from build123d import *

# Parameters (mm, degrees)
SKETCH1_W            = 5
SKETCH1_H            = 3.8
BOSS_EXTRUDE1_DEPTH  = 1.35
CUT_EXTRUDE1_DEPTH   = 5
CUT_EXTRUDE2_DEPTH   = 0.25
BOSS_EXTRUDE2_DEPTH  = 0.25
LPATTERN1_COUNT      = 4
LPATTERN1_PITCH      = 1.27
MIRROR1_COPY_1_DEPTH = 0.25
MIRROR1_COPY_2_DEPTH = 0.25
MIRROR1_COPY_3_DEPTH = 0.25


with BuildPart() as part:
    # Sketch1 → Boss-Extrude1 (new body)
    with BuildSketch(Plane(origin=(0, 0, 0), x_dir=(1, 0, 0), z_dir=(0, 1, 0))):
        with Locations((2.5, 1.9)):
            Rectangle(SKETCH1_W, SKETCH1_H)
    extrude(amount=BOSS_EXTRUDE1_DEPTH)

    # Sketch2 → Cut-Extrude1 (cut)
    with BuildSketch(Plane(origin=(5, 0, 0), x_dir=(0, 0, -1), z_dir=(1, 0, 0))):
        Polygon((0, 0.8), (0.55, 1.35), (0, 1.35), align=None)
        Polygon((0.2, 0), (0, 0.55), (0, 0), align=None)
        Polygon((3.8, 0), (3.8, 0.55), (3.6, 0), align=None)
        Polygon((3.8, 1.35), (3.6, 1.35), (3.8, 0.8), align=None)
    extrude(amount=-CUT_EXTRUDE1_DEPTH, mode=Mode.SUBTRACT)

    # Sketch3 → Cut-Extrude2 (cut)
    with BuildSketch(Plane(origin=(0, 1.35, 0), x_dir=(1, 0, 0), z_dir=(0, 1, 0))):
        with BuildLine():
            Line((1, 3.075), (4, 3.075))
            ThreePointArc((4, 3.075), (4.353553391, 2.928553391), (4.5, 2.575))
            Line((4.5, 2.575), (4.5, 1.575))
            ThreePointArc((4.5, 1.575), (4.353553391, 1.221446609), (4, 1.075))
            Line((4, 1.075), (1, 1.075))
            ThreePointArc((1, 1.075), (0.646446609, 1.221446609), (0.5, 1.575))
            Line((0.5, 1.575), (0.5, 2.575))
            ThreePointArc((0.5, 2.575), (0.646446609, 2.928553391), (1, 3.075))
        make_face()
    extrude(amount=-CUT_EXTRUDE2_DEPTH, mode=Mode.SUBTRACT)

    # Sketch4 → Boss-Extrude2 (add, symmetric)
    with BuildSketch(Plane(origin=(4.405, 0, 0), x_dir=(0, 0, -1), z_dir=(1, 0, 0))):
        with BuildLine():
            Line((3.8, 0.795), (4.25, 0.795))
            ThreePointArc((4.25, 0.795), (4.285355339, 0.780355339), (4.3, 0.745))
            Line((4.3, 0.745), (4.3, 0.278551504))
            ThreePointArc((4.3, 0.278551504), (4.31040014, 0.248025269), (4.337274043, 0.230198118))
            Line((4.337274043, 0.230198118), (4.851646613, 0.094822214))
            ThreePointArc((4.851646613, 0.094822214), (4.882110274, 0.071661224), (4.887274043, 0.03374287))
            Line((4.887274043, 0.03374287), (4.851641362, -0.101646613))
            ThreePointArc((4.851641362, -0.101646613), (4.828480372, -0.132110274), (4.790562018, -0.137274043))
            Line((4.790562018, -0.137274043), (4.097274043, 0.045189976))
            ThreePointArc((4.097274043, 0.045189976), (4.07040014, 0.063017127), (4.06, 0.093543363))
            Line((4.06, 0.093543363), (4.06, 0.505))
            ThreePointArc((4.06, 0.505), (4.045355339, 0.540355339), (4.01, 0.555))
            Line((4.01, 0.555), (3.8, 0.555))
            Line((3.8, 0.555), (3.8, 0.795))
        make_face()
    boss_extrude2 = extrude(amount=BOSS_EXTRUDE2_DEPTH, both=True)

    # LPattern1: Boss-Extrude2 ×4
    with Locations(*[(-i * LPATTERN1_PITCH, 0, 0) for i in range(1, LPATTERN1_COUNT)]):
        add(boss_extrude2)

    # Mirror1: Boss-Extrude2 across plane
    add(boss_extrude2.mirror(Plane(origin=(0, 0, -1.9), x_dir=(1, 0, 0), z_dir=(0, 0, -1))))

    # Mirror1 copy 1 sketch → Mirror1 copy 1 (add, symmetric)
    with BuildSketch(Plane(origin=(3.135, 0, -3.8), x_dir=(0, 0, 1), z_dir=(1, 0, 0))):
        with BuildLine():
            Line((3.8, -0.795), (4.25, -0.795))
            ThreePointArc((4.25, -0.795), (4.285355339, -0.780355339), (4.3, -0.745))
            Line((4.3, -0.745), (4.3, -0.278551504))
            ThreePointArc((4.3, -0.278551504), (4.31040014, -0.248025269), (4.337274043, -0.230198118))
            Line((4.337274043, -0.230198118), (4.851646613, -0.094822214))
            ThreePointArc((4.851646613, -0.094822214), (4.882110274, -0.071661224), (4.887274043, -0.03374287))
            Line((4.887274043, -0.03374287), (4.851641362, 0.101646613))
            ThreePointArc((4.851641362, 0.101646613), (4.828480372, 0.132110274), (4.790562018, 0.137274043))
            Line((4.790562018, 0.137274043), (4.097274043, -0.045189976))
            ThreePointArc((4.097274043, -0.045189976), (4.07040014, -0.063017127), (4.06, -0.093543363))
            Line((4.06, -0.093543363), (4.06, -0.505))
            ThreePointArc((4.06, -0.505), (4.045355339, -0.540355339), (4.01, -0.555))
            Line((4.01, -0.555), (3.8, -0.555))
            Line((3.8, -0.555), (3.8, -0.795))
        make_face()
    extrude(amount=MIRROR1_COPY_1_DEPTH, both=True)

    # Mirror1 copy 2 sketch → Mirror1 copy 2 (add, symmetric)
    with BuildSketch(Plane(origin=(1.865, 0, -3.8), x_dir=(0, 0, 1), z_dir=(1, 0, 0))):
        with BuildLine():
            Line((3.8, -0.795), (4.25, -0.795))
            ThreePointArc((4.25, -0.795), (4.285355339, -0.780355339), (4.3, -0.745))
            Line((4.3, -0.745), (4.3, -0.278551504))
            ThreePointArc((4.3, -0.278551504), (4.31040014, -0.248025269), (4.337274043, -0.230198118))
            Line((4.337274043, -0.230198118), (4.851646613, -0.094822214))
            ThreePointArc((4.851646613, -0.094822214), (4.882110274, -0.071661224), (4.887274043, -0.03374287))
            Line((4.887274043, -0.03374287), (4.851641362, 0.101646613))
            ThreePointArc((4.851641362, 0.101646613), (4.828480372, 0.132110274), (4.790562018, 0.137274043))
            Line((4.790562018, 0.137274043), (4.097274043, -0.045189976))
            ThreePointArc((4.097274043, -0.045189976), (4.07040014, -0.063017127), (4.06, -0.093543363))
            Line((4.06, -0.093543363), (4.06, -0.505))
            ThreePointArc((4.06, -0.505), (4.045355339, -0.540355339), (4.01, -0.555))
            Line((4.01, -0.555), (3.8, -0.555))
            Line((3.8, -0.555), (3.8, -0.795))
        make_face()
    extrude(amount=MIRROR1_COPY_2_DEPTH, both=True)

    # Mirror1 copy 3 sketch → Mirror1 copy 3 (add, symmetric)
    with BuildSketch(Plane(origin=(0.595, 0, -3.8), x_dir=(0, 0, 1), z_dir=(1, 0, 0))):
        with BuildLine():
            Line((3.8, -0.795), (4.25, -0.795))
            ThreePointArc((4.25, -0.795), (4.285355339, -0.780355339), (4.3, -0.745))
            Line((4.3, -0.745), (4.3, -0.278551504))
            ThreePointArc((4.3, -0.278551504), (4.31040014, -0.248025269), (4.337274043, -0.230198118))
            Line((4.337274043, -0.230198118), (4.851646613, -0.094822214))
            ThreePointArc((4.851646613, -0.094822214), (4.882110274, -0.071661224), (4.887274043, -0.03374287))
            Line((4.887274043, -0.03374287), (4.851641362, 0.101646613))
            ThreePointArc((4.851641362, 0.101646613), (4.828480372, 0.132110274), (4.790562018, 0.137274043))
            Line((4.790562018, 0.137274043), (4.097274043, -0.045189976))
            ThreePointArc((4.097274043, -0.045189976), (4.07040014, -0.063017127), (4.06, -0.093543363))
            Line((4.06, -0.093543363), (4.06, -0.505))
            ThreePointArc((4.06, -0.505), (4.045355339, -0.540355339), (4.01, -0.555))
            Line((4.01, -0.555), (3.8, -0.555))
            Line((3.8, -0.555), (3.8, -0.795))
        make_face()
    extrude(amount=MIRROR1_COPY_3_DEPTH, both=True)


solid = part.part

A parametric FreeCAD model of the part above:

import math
import FreeCAD as App
import Part
import Sketcher
Q = App.Units.Quantity

doc = App.newDocument("Part")
body = doc.addObject("PartDesign::Body", "Body")

# Sketch on XZ plane
sketch1 = doc.addObject("Sketcher::SketchObject", "Sketch")
body.addObject(sketch1)
sketch1.AttachmentSupport = (doc.XZ_Plane, [""])
sketch1.MapMode = "FlatFace"
sketch1.addGeometry(Part.LineSegment(App.Vector(0, -3.8, 0), App.Vector(0, 0, 0)), False)
sketch1.addGeometry(Part.LineSegment(App.Vector(0, 0, 0), App.Vector(5, 0, 0)), False)
sketch1.addGeometry(Part.LineSegment(App.Vector(5, 0, 0), App.Vector(5, -3.8, 0)), False)
sketch1.addGeometry(Part.LineSegment(App.Vector(5, -3.8, 0), App.Vector(0, -3.8, 0)), False)
sketch1.addConstraint(Sketcher.Constraint("Coincident", 0, 2, 1, 1))
sketch1.addConstraint(Sketcher.Constraint("Coincident", 1, 2, 2, 1))
sketch1.addConstraint(Sketcher.Constraint("Coincident", 2, 2, 3, 1))
sketch1.addConstraint(Sketcher.Constraint("Coincident", 3, 2, 0, 1))
sketch1.addConstraint(Sketcher.Constraint("Vertical", 0))
sketch1.addConstraint(Sketcher.Constraint("Horizontal", 1))
sketch1.addConstraint(Sketcher.Constraint("Vertical", 2))
sketch1.addConstraint(Sketcher.Constraint("Horizontal", 3))
sketch1.addConstraint(Sketcher.Constraint("Coincident", 0, 2, -1, 1))
sketch1.addConstraint(Sketcher.Constraint("DistanceX", 1, 1, 1, 2, Q("5 mm")))
sketch1.addConstraint(Sketcher.Constraint("DistanceY", 0, 1, 0, 2, Q("3.8 mm")))
pad1 = doc.addObject("PartDesign::Pad", "Pad")
body.addObject(pad1)
pad1.Profile = sketch1
pad1.Length = 1.35
pad1.Reversed = True

# Sketch on YZ plane
sketch2 = doc.addObject("Sketcher::SketchObject", "Sketch001")
body.addObject(sketch2)
sketch2.AttachmentSupport = (doc.YZ_Plane, [""])
sketch2.MapMode = "FlatFace"
sketch2.AttachmentOffset = App.Placement(App.Vector(0, 0, 5), App.Rotation())
sketch2.addGeometry(Part.LineSegment(App.Vector(0.8, 0, 0), App.Vector(1.35, -0.55, 0)), False)
sketch2.addGeometry(Part.LineSegment(App.Vector(1.35, -0.55, 0), App.Vector(1.35, 0, 0)), False)
sketch2.addGeometry(Part.LineSegment(App.Vector(1.35, 0, 0), App.Vector(0.8, 0, 0)), False)
sketch2.addGeometry(Part.LineSegment(App.Vector(0, -0.2, 0), App.Vector(0.55, 0, 0)), False)
sketch2.addGeometry(Part.LineSegment(App.Vector(0.55, 0, 0), App.Vector(0, 0, 0)), False)
sketch2.addGeometry(Part.LineSegment(App.Vector(0, 0, 0), App.Vector(0, -0.2, 0)), False)
sketch2.addGeometry(Part.LineSegment(App.Vector(0, -3.8, 0), App.Vector(0.55, -3.8, 0)), False)
sketch2.addGeometry(Part.LineSegment(App.Vector(0.55, -3.8, 0), App.Vector(0, -3.6, 0)), False)
sketch2.addGeometry(Part.LineSegment(App.Vector(0, -3.6, 0), App.Vector(0, -3.8, 0)), False)
sketch2.addGeometry(Part.LineSegment(App.Vector(1.35, -3.8, 0), App.Vector(1.35, -3.6, 0)), False)
sketch2.addGeometry(Part.LineSegment(App.Vector(1.35, -3.6, 0), App.Vector(0.8, -3.8, 0)), False)
sketch2.addGeometry(Part.LineSegment(App.Vector(0.8, -3.8, 0), App.Vector(1.35, -3.8, 0)), False)
sketch2.addConstraint(Sketcher.Constraint("Coincident", 0, 2, 1, 1))
sketch2.addConstraint(Sketcher.Constraint("Coincident", 1, 2, 2, 1))
sketch2.addConstraint(Sketcher.Constraint("Coincident", 2, 2, 0, 1))
sketch2.addConstraint(Sketcher.Constraint("Coincident", 3, 2, 4, 1))
sketch2.addConstraint(Sketcher.Constraint("Coincident", 4, 2, 5, 1))
sketch2.addConstraint(Sketcher.Constraint("Coincident", 5, 2, 3, 1))
sketch2.addConstraint(Sketcher.Constraint("Coincident", 6, 2, 7, 1))
sketch2.addConstraint(Sketcher.Constraint("Coincident", 7, 2, 8, 1))
sketch2.addConstraint(Sketcher.Constraint("Coincident", 8, 2, 6, 1))
sketch2.addConstraint(Sketcher.Constraint("Coincident", 9, 2, 10, 1))
sketch2.addConstraint(Sketcher.Constraint("Coincident", 10, 2, 11, 1))
sketch2.addConstraint(Sketcher.Constraint("Coincident", 11, 2, 9, 1))
sketch2.addConstraint(Sketcher.Constraint("Vertical", 1))
sketch2.addConstraint(Sketcher.Constraint("Horizontal", 2))
sketch2.addConstraint(Sketcher.Constraint("Horizontal", 4))
sketch2.addConstraint(Sketcher.Constraint("Vertical", 5))
sketch2.addConstraint(Sketcher.Constraint("Horizontal", 6))
sketch2.addConstraint(Sketcher.Constraint("Vertical", 8))
sketch2.addConstraint(Sketcher.Constraint("Vertical", 9))
sketch2.addConstraint(Sketcher.Constraint("Horizontal", 11))
sketch2.addConstraint(Sketcher.Constraint("Coincident", 4, 2, -1, 1))
sketch2.addConstraint(Sketcher.Constraint("PointOnObject", 1, 2, -1))
sketch2.addConstraint(Sketcher.Constraint("PointOnObject", 7, 2, -2))
sketch2.addConstraint(Sketcher.Constraint("Parallel", 3, 10))
sketch2.addConstraint(Sketcher.Constraint("Horizontal", 7, 2, 9, 2))
sketch2.addConstraint(Sketcher.Constraint("Horizontal", 8, 2, 10, 2))
sketch2.addConstraint(Sketcher.Constraint("Vertical", 3, 2, 6, 2))
sketch2.addConstraint(Sketcher.Constraint("Vertical", 1, 2, 9, 2))
sketch2.addConstraint(Sketcher.Constraint("Vertical", 2, 2, 10, 2))
sketch2.addConstraint(Sketcher.Constraint("Equal", 2, 4))
sketch2.addConstraint(Sketcher.Constraint("Equal", 11, 1))
sketch2.addConstraint(Sketcher.Constraint("DistanceY", 5, 2, 5, 1, Q("0.2 mm")))
sketch2.addConstraint(Sketcher.Constraint("DistanceX", 2, 2, 2, 1, Q("0.55 mm")))
sketch2.addConstraint(Sketcher.Constraint("DistanceX", -1, 1, 2, 2, Q("0.8 mm")))
sketch2.addConstraint(Sketcher.Constraint("DistanceY", 6, 2, -1, 1, Q("3.8 mm")))
pocket1 = doc.addObject("PartDesign::Pocket", "Pocket")
body.addObject(pocket1)
pocket1.Profile = sketch2
pocket1.Length = 5

# Sketch on XZ plane
sketch3 = doc.addObject("Sketcher::SketchObject", "Sketch002")
body.addObject(sketch3)
sketch3.AttachmentSupport = (doc.XZ_Plane, [""])
sketch3.MapMode = "FlatFace"
sketch3.AttachmentOffset = App.Placement(App.Vector(0, 0, -1.35), App.Rotation())
sketch3.addGeometry(Part.LineSegment(App.Vector(4, -3.075, 0), App.Vector(1, -3.075, 0)), False)
sketch3.addGeometry(Part.ArcOfCircle(Part.Circle(App.Vector(1, -2.575, 0), App.Vector(0, 0, 1), 0.5), math.radians(180), math.radians(270)), False)
sketch3.addGeometry(Part.LineSegment(App.Vector(0.5, -2.575, 0), App.Vector(0.5, -1.575, 0)), False)
sketch3.addGeometry(Part.ArcOfCircle(Part.Circle(App.Vector(1, -1.575, 0), App.Vector(0, 0, 1), 0.5), math.radians(90), math.radians(180)), False)
sketch3.addGeometry(Part.LineSegment(App.Vector(1, -1.075, 0), App.Vector(4, -1.075, 0)), False)
sketch3.addGeometry(Part.ArcOfCircle(Part.Circle(App.Vector(4, -1.575, 0), App.Vector(0, 0, 1), 0.5), math.radians(0), math.radians(90)), False)
sketch3.addGeometry(Part.LineSegment(App.Vector(4.5, -1.575, 0), App.Vector(4.5, -2.575, 0)), False)
sketch3.addGeometry(Part.ArcOfCircle(Part.Circle(App.Vector(4, -2.575, 0), App.Vector(0, 0, 1), 0.5), math.radians(-90), math.radians(0)), False)
sketch3.addConstraint(Sketcher.Constraint("Tangent", 0, 2, 1, 2))
sketch3.addConstraint(Sketcher.Constraint("Tangent", 1, 1, 2, 1))
sketch3.addConstraint(Sketcher.Constraint("Tangent", 2, 2, 3, 2))
sketch3.addConstraint(Sketcher.Constraint("Tangent", 3, 1, 4, 1))
sketch3.addConstraint(Sketcher.Constraint("Tangent", 4, 2, 5, 2))
sketch3.addConstraint(Sketcher.Constraint("Tangent", 5, 1, 6, 1))
sketch3.addConstraint(Sketcher.Constraint("Tangent", 6, 2, 7, 2))
sketch3.addConstraint(Sketcher.Constraint("Tangent", 7, 1, 0, 1))
sketch3.addConstraint(Sketcher.Constraint("Horizontal", 0))
sketch3.addConstraint(Sketcher.Constraint("Vertical", 2))
sketch3.addConstraint(Sketcher.Constraint("Horizontal", 4))
sketch3.addConstraint(Sketcher.Constraint("Vertical", 6))
sketch3.addConstraint(Sketcher.Constraint("Equal", 1, 3))
sketch3.addConstraint(Sketcher.Constraint("Equal", 3, 5))
sketch3.addConstraint(Sketcher.Constraint("Equal", 5, 7))
sketch3.addConstraint(Sketcher.Constraint("Radius", 1, Q("0.5 mm")))
sketch3.addConstraint(Sketcher.Constraint("DistanceX", 0, 2, 0, 1, Q("3 mm")))
sketch3.addConstraint(Sketcher.Constraint("DistanceY", 2, 1, 2, 2, Q("1 mm")))
sketch3.addConstraint(Sketcher.Constraint("DistanceX", -1, 1, 1, 3, Q("1 mm")))
sketch3.addConstraint(Sketcher.Constraint("DistanceY", 1, 3, -1, 1, Q("2.575 mm")))
pocket2 = doc.addObject("PartDesign::Pocket", "Pocket001")
body.addObject(pocket2)
pocket2.Profile = sketch3
pocket2.Length = 0.25
pocket2.Reversed = True

# Sketch on YZ plane
sketch4 = doc.addObject("Sketcher::SketchObject", "Sketch003")
body.addObject(sketch4)
sketch4.AttachmentSupport = (doc.YZ_Plane, [""])
sketch4.MapMode = "FlatFace"
sketch4.AttachmentOffset = App.Placement(App.Vector(0, 0, 4.405), App.Rotation())
sketch4.addGeometry(Part.LineSegment(App.Vector(0.795, -4.25, 0), App.Vector(0.795, -3.8, 0)), False)
sketch4.addGeometry(Part.LineSegment(App.Vector(0.795, -3.8, 0), App.Vector(0.555, -3.8, 0)), False)
sketch4.addGeometry(Part.LineSegment(App.Vector(0.555, -3.8, 0), App.Vector(0.555, -4.01, 0)), False)
sketch4.addGeometry(Part.ArcOfCircle(Part.Circle(App.Vector(0.505, -4.01, 0), App.Vector(0, 0, 1), 0.05), math.radians(-90), math.radians(0)), False)
sketch4.addGeometry(Part.LineSegment(App.Vector(0.505, -4.06, 0), App.Vector(0.093543, -4.06, 0)), False)
sketch4.addGeometry(Part.ArcOfCircle(Part.Circle(App.Vector(0.093543, -4.11, 0), App.Vector(0, 0, 1), 0.05), math.radians(90), math.radians(165.254905)), False)
sketch4.addGeometry(Part.LineSegment(App.Vector(0.04519, -4.097274, 0), App.Vector(-0.137274, -4.790562, 0)), False)
sketch4.addGeometry(Part.ArcOfCircle(Part.Circle(App.Vector(-0.088921, -4.803288, 0), App.Vector(0, 0, 1), 0.05), math.radians(165.254908), math.radians(255.254905)), False)
sketch4.addGeometry(Part.LineSegment(App.Vector(-0.101647, -4.851641, 0), App.Vector(0.033743, -4.887274, 0)), False)
sketch4.addGeometry(Part.ArcOfCircle(Part.Circle(App.Vector(0.046469, -4.838921, 0), App.Vector(0, 0, 1), 0.05), math.radians(-104.745092), math.radians(-14.745095)), False)
sketch4.addGeometry(Part.LineSegment(App.Vector(0.094822, -4.851647, 0), App.Vector(0.230198, -4.337274, 0)), False)
sketch4.addGeometry(Part.ArcOfCircle(Part.Circle(App.Vector(0.278552, -4.35, 0), App.Vector(0, 0, 1), 0.05), math.radians(90.000001), math.radians(165.254905)), False)
sketch4.addGeometry(Part.LineSegment(App.Vector(0.278552, -4.3, 0), App.Vector(0.745, -4.3, 0)), False)
sketch4.addGeometry(Part.ArcOfCircle(Part.Circle(App.Vector(0.745, -4.25, 0), App.Vector(0, 0, 1), 0.05), math.radians(-90), math.radians(0)), False)
sketch4.addConstraint(Sketcher.Constraint("Coincident", 0, 2, 1, 1))
sketch4.addConstraint(Sketcher.Constraint("Coincident", 1, 2, 2, 1))
sketch4.addConstraint(Sketcher.Constraint("Coincident", 2, 2, 3, 2))
sketch4.addConstraint(Sketcher.Constraint("Coincident", 3, 1, 4, 1))
sketch4.addConstraint(Sketcher.Constraint("Coincident", 4, 2, 5, 1))
sketch4.addConstraint(Sketcher.Constraint("Coincident", 5, 2, 6, 1))
sketch4.addConstraint(Sketcher.Constraint("Coincident", 6, 2, 7, 1))
sketch4.addConstraint(Sketcher.Constraint("Coincident", 7, 2, 8, 1))
sketch4.addConstraint(Sketcher.Constraint("Coincident", 8, 2, 9, 1))
sketch4.addConstraint(Sketcher.Constraint("Coincident", 9, 2, 10, 1))
sketch4.addConstraint(Sketcher.Constraint("Coincident", 10, 2, 11, 2))
sketch4.addConstraint(Sketcher.Constraint("Coincident", 11, 1, 12, 1))
sketch4.addConstraint(Sketcher.Constraint("Coincident", 12, 2, 13, 1))
sketch4.addConstraint(Sketcher.Constraint("Coincident", 13, 2, 0, 1))
sketch4.addConstraint(Sketcher.Constraint("Vertical", 0))
sketch4.addConstraint(Sketcher.Constraint("Horizontal", 1))
sketch4.addConstraint(Sketcher.Constraint("Vertical", 2))
sketch4.addConstraint(Sketcher.Constraint("Horizontal", 4))
sketch4.addConstraint(Sketcher.Constraint("Horizontal", 12))
sketch4.addConstraint(Sketcher.Constraint("Radius", 3, Q("0.05 mm")))
sketch4.addConstraint(Sketcher.Constraint("Radius", 5, Q("0.05 mm")))
sketch4.addConstraint(Sketcher.Constraint("Radius", 7, Q("0.05 mm")))
sketch4.addConstraint(Sketcher.Constraint("Radius", 9, Q("0.05 mm")))
sketch4.addConstraint(Sketcher.Constraint("Radius", 11, Q("0.05 mm")))
sketch4.addConstraint(Sketcher.Constraint("Radius", 13, Q("0.05 mm")))
sketch4.addConstraint(Sketcher.Constraint("DistanceX", 1, 2, 1, 1, Q("0.24 mm")))
sketch4.addConstraint(Sketcher.Constraint("DistanceY", 0, 1, 0, 2, Q("0.45 mm")))
sketch4.addConstraint(Sketcher.Constraint("DistanceY", 2, 2, 2, 1, Q("0.21 mm")))
sketch4.addConstraint(Sketcher.Constraint("DistanceY", 0, 2, -1, 1, Q("3.8 mm")))
sketch4.addConstraint(Sketcher.Constraint("DistanceY", 11, 1, -1, 1, Q("4.3 mm")))
sketch4.addConstraint(Sketcher.Constraint("Distance", 8, Q("0.14 mm")))
sketch4.addConstraint(Sketcher.Constraint("DistanceY", 3, 3, -1, 1, Q("4.01 mm")))
sketch4.addConstraint(Sketcher.Constraint("DistanceX", 3, 1, 2, 2, Q("0.05 mm")))
sketch4.addConstraint(Sketcher.Constraint("DistanceY", 10, 2, 5, 2, Q("0.24 mm")))
sketch4.addConstraint(Sketcher.Constraint("DistanceX", 3, 1, 12, 2, Q("0.24 mm")))
sketch4.addConstraint(Sketcher.Constraint("DistanceX", -1, 1, 3, 3, Q("0.505 mm")))
sketch4.addConstraint(Sketcher.Constraint("DistanceX", 12, 1, 12, 2, Q("0.466448 mm")))
sketch4.addConstraint(Sketcher.Constraint("DistanceX", -1, 1, 10, 2, Q("0.230198 mm")))
sketch4.addConstraint(Sketcher.Constraint("DistanceX", 7, 2, 11, 3, Q("0.380198 mm")))
sketch4.addConstraint(Sketcher.Constraint("Distance", 10, Q("0.531889 mm")))
sketch4.addConstraint(Sketcher.Constraint("DistanceX", 4, 2, 4, 1, Q("0.411457 mm")))
sketch4.addConstraint(Sketcher.Constraint("DistanceX", 7, 3, -1, 1, Q("0.088921 mm")))
sketch4.addConstraint(Sketcher.Constraint("DistanceX", -1, 1, 9, 3, Q("0.046469 mm")))
sketch4.addConstraint(Sketcher.Constraint("DistanceY", 9, 3, -1, 1, Q("4.838921 mm")))
sketch4.addConstraint(Sketcher.Constraint("DistanceX", -1, 1, 11, 3, Q("0.278552 mm")))
sketch4.addConstraint(Sketcher.Constraint("DistanceX", -1, 1, 5, 2, Q("0.04519 mm")))
sketch4.addConstraint(Sketcher.Constraint("DistanceY", 7, 2, -1, 1, Q("4.851641 mm")))
sketch4.addConstraint(Sketcher.Constraint("DistanceY", 9, 3, 6, 2, Q("0.048359 mm")))
pad2 = doc.addObject("PartDesign::Pad", "Pad001")
body.addObject(pad2)
pad2.Profile = sketch4
pad2.Length = 0.5
pad2.Midplane = True
doc.recompute()

linearpattern = doc.addObject("PartDesign::LinearPattern", "LinearPattern")
body.addObject(linearpattern)
linearpattern.Originals = [pad2]
linearpattern.Direction = (doc.X_Axis, [""])
linearpattern.Mode = "offset"
linearpattern.Offset = 1.27
linearpattern.Occurrences = 4
linearpattern.Reversed = True
body.Tip = linearpattern
doc.recompute()

datumplane = doc.addObject("PartDesign::Plane", "DatumPlane")
body.addObject(datumplane)
datumplane.AttachmentSupport = (doc.XY_Plane, [""])
datumplane.MapMode = "FlatFace"
datumplane.AttachmentOffset = App.Placement(App.Vector(0, 0, -1.9), App.Rotation())
mirrored = doc.addObject("PartDesign::Mirrored", "Mirrored")
body.addObject(mirrored)
mirrored.Originals = [pad2]
mirrored.MirrorPlane = (datumplane, [""])
body.Tip = mirrored

# Sketch on YZ plane
sketch5 = doc.addObject("Sketcher::SketchObject", "Sketch004")
body.addObject(sketch5)
sketch5.AttachmentSupport = (doc.YZ_Plane, [""])
sketch5.MapMode = "FlatFace"
sketch5.AttachmentOffset = App.Placement(App.Vector(0, 0, 3.135), App.Rotation())
sketch5.addGeometry(Part.LineSegment(App.Vector(0.795, 0, 0), App.Vector(0.795, 0.45, 0)), False)
sketch5.addGeometry(Part.ArcOfCircle(Part.Circle(App.Vector(0.745, 0.45, 0), App.Vector(0, 0, 1), 0.05), math.radians(0), math.radians(90)), False)
sketch5.addGeometry(Part.LineSegment(App.Vector(0.745, 0.5, 0), App.Vector(0.278552, 0.5, 0)), False)
sketch5.addGeometry(Part.ArcOfCircle(Part.Circle(App.Vector(0.278552, 0.55, 0), App.Vector(0, 0, 1), 0.05), math.radians(-165.254905), math.radians(-90.000001)), False)
sketch5.addGeometry(Part.LineSegment(App.Vector(0.230198, 0.537274, 0), App.Vector(0.094822, 1.051647, 0)), False)
sketch5.addGeometry(Part.ArcOfCircle(Part.Circle(App.Vector(0.046469, 1.038921, 0), App.Vector(0, 0, 1), 0.05), math.radians(14.745095), math.radians(104.745092)), False)
sketch5.addGeometry(Part.LineSegment(App.Vector(0.033743, 1.087274, 0), App.Vector(-0.101647, 1.051641, 0)), False)
sketch5.addGeometry(Part.ArcOfCircle(Part.Circle(App.Vector(-0.088921, 1.003288, 0), App.Vector(0, 0, 1), 0.05), math.radians(104.745095), math.radians(194.745092)), False)
sketch5.addGeometry(Part.LineSegment(App.Vector(-0.137274, 0.990562, 0), App.Vector(0.04519, 0.297274, 0)), False)
sketch5.addGeometry(Part.ArcOfCircle(Part.Circle(App.Vector(0.093543, 0.31, 0), App.Vector(0, 0, 1), 0.05), math.radians(-165.254905), math.radians(-90)), False)
sketch5.addGeometry(Part.LineSegment(App.Vector(0.093543, 0.26, 0), App.Vector(0.505, 0.26, 0)), False)
sketch5.addGeometry(Part.ArcOfCircle(Part.Circle(App.Vector(0.505, 0.21, 0), App.Vector(0, 0, 1), 0.05), math.radians(0), math.radians(90)), False)
sketch5.addGeometry(Part.LineSegment(App.Vector(0.555, 0.21, 0), App.Vector(0.555, 0, 0)), False)
sketch5.addGeometry(Part.LineSegment(App.Vector(0.555, 0, 0), App.Vector(0.795, 0, 0)), False)
sketch5.addConstraint(Sketcher.Constraint("Coincident", 0, 2, 1, 1))
sketch5.addConstraint(Sketcher.Constraint("Coincident", 1, 2, 2, 1))
sketch5.addConstraint(Sketcher.Constraint("Coincident", 2, 2, 3, 2))
sketch5.addConstraint(Sketcher.Constraint("Coincident", 3, 1, 4, 1))
sketch5.addConstraint(Sketcher.Constraint("Coincident", 4, 2, 5, 1))
sketch5.addConstraint(Sketcher.Constraint("Coincident", 5, 2, 6, 1))
sketch5.addConstraint(Sketcher.Constraint("Coincident", 6, 2, 7, 1))
sketch5.addConstraint(Sketcher.Constraint("Coincident", 7, 2, 8, 1))
sketch5.addConstraint(Sketcher.Constraint("Coincident", 8, 2, 9, 1))
sketch5.addConstraint(Sketcher.Constraint("Coincident", 9, 2, 10, 1))
sketch5.addConstraint(Sketcher.Constraint("Coincident", 10, 2, 11, 2))
sketch5.addConstraint(Sketcher.Constraint("Coincident", 11, 1, 12, 1))
sketch5.addConstraint(Sketcher.Constraint("Coincident", 12, 2, 13, 1))
sketch5.addConstraint(Sketcher.Constraint("Coincident", 13, 2, 0, 1))
sketch5.addConstraint(Sketcher.Constraint("Vertical", 0))
sketch5.addConstraint(Sketcher.Constraint("Horizontal", 2))
sketch5.addConstraint(Sketcher.Constraint("Horizontal", 10))
sketch5.addConstraint(Sketcher.Constraint("Vertical", 12))
sketch5.addConstraint(Sketcher.Constraint("Horizontal", 13))
sketch5.addConstraint(Sketcher.Constraint("PointOnObject", 12, 2, -1))
sketch5.addConstraint(Sketcher.Constraint("Radius", 1, Q("0.05 mm")))
sketch5.addConstraint(Sketcher.Constraint("Radius", 3, Q("0.05 mm")))
sketch5.addConstraint(Sketcher.Constraint("Radius", 5, Q("0.05 mm")))
sketch5.addConstraint(Sketcher.Constraint("Radius", 7, Q("0.05 mm")))
sketch5.addConstraint(Sketcher.Constraint("Radius", 9, Q("0.05 mm")))
sketch5.addConstraint(Sketcher.Constraint("Radius", 11, Q("0.05 mm")))
sketch5.addConstraint(Sketcher.Constraint("DistanceX", 13, 1, 13, 2, Q("0.24 mm")))
sketch5.addConstraint(Sketcher.Constraint("DistanceY", 0, 1, 0, 2, Q("0.45 mm")))
sketch5.addConstraint(Sketcher.Constraint("DistanceY", 12, 2, 12, 1, Q("0.21 mm")))
sketch5.addConstraint(Sketcher.Constraint("DistanceY", -1, 1, 1, 2, Q("0.5 mm")))
sketch5.addConstraint(Sketcher.Constraint("Distance", 6, Q("0.14 mm")))
sketch5.addConstraint(Sketcher.Constraint("DistanceY", -1, 1, 9, 3, Q("0.31 mm")))
sketch5.addConstraint(Sketcher.Constraint("DistanceX", 1, 2, 0, 2, Q("0.05 mm")))
sketch5.addConstraint(Sketcher.Constraint("DistanceY", 3, 1, 5, 2, Q("0.55 mm")))
sketch5.addConstraint(Sketcher.Constraint("DistanceY", 8, 2, 3, 1, Q("0.24 mm")))
sketch5.addConstraint(Sketcher.Constraint("DistanceX", 10, 2, 1, 3, Q("0.24 mm")))
sketch5.addConstraint(Sketcher.Constraint("DistanceX", -1, 1, 1, 3, Q("0.745 mm")))
sketch5.addConstraint(Sketcher.Constraint("DistanceX", 2, 2, 2, 1, Q("0.466448 mm")))
sketch5.addConstraint(Sketcher.Constraint("DistanceX", -1, 1, 3, 1, Q("0.230198 mm")))
sketch5.addConstraint(Sketcher.Constraint("Distance", 4, Q("0.531889 mm")))
sketch5.addConstraint(Sketcher.Constraint("DistanceX", 10, 1, 10, 2, Q("0.411457 mm")))
sketch5.addConstraint(Sketcher.Constraint("DistanceX", -1, 1, 3, 3, Q("0.278552 mm")))
sketch5.addConstraint(Sketcher.Constraint("DistanceX", -1, 1, 5, 3, Q("0.046469 mm")))
sketch5.addConstraint(Sketcher.Constraint("DistanceY", -1, 1, 5, 3, Q("1.038921 mm")))
sketch5.addConstraint(Sketcher.Constraint("DistanceX", 7, 3, -1, 1, Q("0.088921 mm")))
sketch5.addConstraint(Sketcher.Constraint("DistanceY", -1, 1, 6, 2, Q("1.051641 mm")))
sketch5.addConstraint(Sketcher.Constraint("DistanceX", -1, 1, 8, 2, Q("0.04519 mm")))
sketch5.addConstraint(Sketcher.Constraint("DistanceY", 7, 2, 6, 2, Q("0.061079 mm")))
pad3 = doc.addObject("PartDesign::Pad", "Pad002")
body.addObject(pad3)
pad3.Profile = sketch5
pad3.Length = 0.5
pad3.Midplane = True

# Sketch on YZ plane
sketch6 = doc.addObject("Sketcher::SketchObject", "Sketch005")
body.addObject(sketch6)
sketch6.AttachmentSupport = (doc.YZ_Plane, [""])
sketch6.MapMode = "FlatFace"
sketch6.AttachmentOffset = App.Placement(App.Vector(0, 0, 1.865), App.Rotation())
sketch6.addGeometry(Part.LineSegment(App.Vector(0.795, 0, 0), App.Vector(0.795, 0.45, 0)), False)
sketch6.addGeometry(Part.ArcOfCircle(Part.Circle(App.Vector(0.745, 0.45, 0), App.Vector(0, 0, 1), 0.05), math.radians(0), math.radians(90)), False)
sketch6.addGeometry(Part.LineSegment(App.Vector(0.745, 0.5, 0), App.Vector(0.278552, 0.5, 0)), False)
sketch6.addGeometry(Part.ArcOfCircle(Part.Circle(App.Vector(0.278552, 0.55, 0), App.Vector(0, 0, 1), 0.05), math.radians(-165.254905), math.radians(-90.000001)), False)
sketch6.addGeometry(Part.LineSegment(App.Vector(0.230198, 0.537274, 0), App.Vector(0.094822, 1.051647, 0)), False)
sketch6.addGeometry(Part.ArcOfCircle(Part.Circle(App.Vector(0.046469, 1.038921, 0), App.Vector(0, 0, 1), 0.05), math.radians(14.745095), math.radians(104.745092)), False)
sketch6.addGeometry(Part.LineSegment(App.Vector(0.033743, 1.087274, 0), App.Vector(-0.101647, 1.051641, 0)), False)
sketch6.addGeometry(Part.ArcOfCircle(Part.Circle(App.Vector(-0.088921, 1.003288, 0), App.Vector(0, 0, 1), 0.05), math.radians(104.745095), math.radians(194.745092)), False)
sketch6.addGeometry(Part.LineSegment(App.Vector(-0.137274, 0.990562, 0), App.Vector(0.04519, 0.297274, 0)), False)
sketch6.addGeometry(Part.ArcOfCircle(Part.Circle(App.Vector(0.093543, 0.31, 0), App.Vector(0, 0, 1), 0.05), math.radians(-165.254905), math.radians(-90)), False)
sketch6.addGeometry(Part.LineSegment(App.Vector(0.093543, 0.26, 0), App.Vector(0.505, 0.26, 0)), False)
sketch6.addGeometry(Part.ArcOfCircle(Part.Circle(App.Vector(0.505, 0.21, 0), App.Vector(0, 0, 1), 0.05), math.radians(0), math.radians(90)), False)
sketch6.addGeometry(Part.LineSegment(App.Vector(0.555, 0.21, 0), App.Vector(0.555, 0, 0)), False)
sketch6.addGeometry(Part.LineSegment(App.Vector(0.555, 0, 0), App.Vector(0.795, 0, 0)), False)
sketch6.addConstraint(Sketcher.Constraint("Coincident", 0, 2, 1, 1))
sketch6.addConstraint(Sketcher.Constraint("Coincident", 1, 2, 2, 1))
sketch6.addConstraint(Sketcher.Constraint("Coincident", 2, 2, 3, 2))
sketch6.addConstraint(Sketcher.Constraint("Coincident", 3, 1, 4, 1))
sketch6.addConstraint(Sketcher.Constraint("Coincident", 4, 2, 5, 1))
sketch6.addConstraint(Sketcher.Constraint("Coincident", 5, 2, 6, 1))
sketch6.addConstraint(Sketcher.Constraint("Coincident", 6, 2, 7, 1))
sketch6.addConstraint(Sketcher.Constraint("Coincident", 7, 2, 8, 1))
sketch6.addConstraint(Sketcher.Constraint("Coincident", 8, 2, 9, 1))
sketch6.addConstraint(Sketcher.Constraint("Coincident", 9, 2, 10, 1))
sketch6.addConstraint(Sketcher.Constraint("Coincident", 10, 2, 11, 2))
sketch6.addConstraint(Sketcher.Constraint("Coincident", 11, 1, 12, 1))
sketch6.addConstraint(Sketcher.Constraint("Coincident", 12, 2, 13, 1))
sketch6.addConstraint(Sketcher.Constraint("Coincident", 13, 2, 0, 1))
sketch6.addConstraint(Sketcher.Constraint("Vertical", 0))
sketch6.addConstraint(Sketcher.Constraint("Horizontal", 2))
sketch6.addConstraint(Sketcher.Constraint("Horizontal", 10))
sketch6.addConstraint(Sketcher.Constraint("Vertical", 12))
sketch6.addConstraint(Sketcher.Constraint("Horizontal", 13))
sketch6.addConstraint(Sketcher.Constraint("PointOnObject", 12, 2, -1))
sketch6.addConstraint(Sketcher.Constraint("Radius", 1, Q("0.05 mm")))
sketch6.addConstraint(Sketcher.Constraint("Radius", 3, Q("0.05 mm")))
sketch6.addConstraint(Sketcher.Constraint("Radius", 5, Q("0.05 mm")))
sketch6.addConstraint(Sketcher.Constraint("Radius", 7, Q("0.05 mm")))
sketch6.addConstraint(Sketcher.Constraint("Radius", 9, Q("0.05 mm")))
sketch6.addConstraint(Sketcher.Constraint("Radius", 11, Q("0.05 mm")))
sketch6.addConstraint(Sketcher.Constraint("DistanceX", 13, 1, 13, 2, Q("0.24 mm")))
sketch6.addConstraint(Sketcher.Constraint("DistanceY", 0, 1, 0, 2, Q("0.45 mm")))
sketch6.addConstraint(Sketcher.Constraint("DistanceY", 12, 2, 12, 1, Q("0.21 mm")))
sketch6.addConstraint(Sketcher.Constraint("DistanceY", -1, 1, 1, 2, Q("0.5 mm")))
sketch6.addConstraint(Sketcher.Constraint("Distance", 6, Q("0.14 mm")))
sketch6.addConstraint(Sketcher.Constraint("DistanceY", -1, 1, 9, 3, Q("0.31 mm")))
sketch6.addConstraint(Sketcher.Constraint("DistanceX", 1, 2, 0, 2, Q("0.05 mm")))
sketch6.addConstraint(Sketcher.Constraint("DistanceY", 3, 1, 5, 2, Q("0.55 mm")))
sketch6.addConstraint(Sketcher.Constraint("DistanceY", 8, 2, 3, 1, Q("0.24 mm")))
sketch6.addConstraint(Sketcher.Constraint("DistanceX", 10, 2, 1, 3, Q("0.24 mm")))
sketch6.addConstraint(Sketcher.Constraint("DistanceX", -1, 1, 1, 3, Q("0.745 mm")))
sketch6.addConstraint(Sketcher.Constraint("DistanceX", 2, 2, 2, 1, Q("0.466448 mm")))
sketch6.addConstraint(Sketcher.Constraint("DistanceX", -1, 1, 3, 1, Q("0.230198 mm")))
sketch6.addConstraint(Sketcher.Constraint("Distance", 4, Q("0.531889 mm")))
sketch6.addConstraint(Sketcher.Constraint("DistanceX", 10, 1, 10, 2, Q("0.411457 mm")))
sketch6.addConstraint(Sketcher.Constraint("DistanceX", -1, 1, 3, 3, Q("0.278552 mm")))
sketch6.addConstraint(Sketcher.Constraint("DistanceX", -1, 1, 5, 3, Q("0.046469 mm")))
sketch6.addConstraint(Sketcher.Constraint("DistanceY", -1, 1, 5, 3, Q("1.038921 mm")))
sketch6.addConstraint(Sketcher.Constraint("DistanceX", 7, 3, -1, 1, Q("0.088921 mm")))
sketch6.addConstraint(Sketcher.Constraint("DistanceY", -1, 1, 6, 2, Q("1.051641 mm")))
sketch6.addConstraint(Sketcher.Constraint("DistanceX", -1, 1, 8, 2, Q("0.04519 mm")))
sketch6.addConstraint(Sketcher.Constraint("DistanceY", 7, 2, 6, 2, Q("0.061079 mm")))
pad4 = doc.addObject("PartDesign::Pad", "Pad003")
body.addObject(pad4)
pad4.Profile = sketch6
pad4.Length = 0.5
pad4.Midplane = True

# Sketch on YZ plane
sketch7 = doc.addObject("Sketcher::SketchObject", "Sketch006")
body.addObject(sketch7)
sketch7.AttachmentSupport = (doc.YZ_Plane, [""])
sketch7.MapMode = "FlatFace"
sketch7.AttachmentOffset = App.Placement(App.Vector(0, 0, 0.595), App.Rotation())
sketch7.addGeometry(Part.LineSegment(App.Vector(0.795, 0, 0), App.Vector(0.795, 0.45, 0)), False)
sketch7.addGeometry(Part.ArcOfCircle(Part.Circle(App.Vector(0.745, 0.45, 0), App.Vector(0, 0, 1), 0.05), math.radians(0), math.radians(90)), False)
sketch7.addGeometry(Part.LineSegment(App.Vector(0.745, 0.5, 0), App.Vector(0.278552, 0.5, 0)), False)
sketch7.addGeometry(Part.ArcOfCircle(Part.Circle(App.Vector(0.278552, 0.55, 0), App.Vector(0, 0, 1), 0.05), math.radians(-165.254905), math.radians(-90.000001)), False)
sketch7.addGeometry(Part.LineSegment(App.Vector(0.230198, 0.537274, 0), App.Vector(0.094822, 1.051647, 0)), False)
sketch7.addGeometry(Part.ArcOfCircle(Part.Circle(App.Vector(0.046469, 1.038921, 0), App.Vector(0, 0, 1), 0.05), math.radians(14.745095), math.radians(104.745092)), False)
sketch7.addGeometry(Part.LineSegment(App.Vector(0.033743, 1.087274, 0), App.Vector(-0.101647, 1.051641, 0)), False)
sketch7.addGeometry(Part.ArcOfCircle(Part.Circle(App.Vector(-0.088921, 1.003288, 0), App.Vector(0, 0, 1), 0.05), math.radians(104.745095), math.radians(194.745092)), False)
sketch7.addGeometry(Part.LineSegment(App.Vector(-0.137274, 0.990562, 0), App.Vector(0.04519, 0.297274, 0)), False)
sketch7.addGeometry(Part.ArcOfCircle(Part.Circle(App.Vector(0.093543, 0.31, 0), App.Vector(0, 0, 1), 0.05), math.radians(-165.254905), math.radians(-90)), False)
sketch7.addGeometry(Part.LineSegment(App.Vector(0.093543, 0.26, 0), App.Vector(0.505, 0.26, 0)), False)
sketch7.addGeometry(Part.ArcOfCircle(Part.Circle(App.Vector(0.505, 0.21, 0), App.Vector(0, 0, 1), 0.05), math.radians(0), math.radians(90)), False)
sketch7.addGeometry(Part.LineSegment(App.Vector(0.555, 0.21, 0), App.Vector(0.555, 0, 0)), False)
sketch7.addGeometry(Part.LineSegment(App.Vector(0.555, 0, 0), App.Vector(0.795, 0, 0)), False)
sketch7.addConstraint(Sketcher.Constraint("Coincident", 0, 2, 1, 1))
sketch7.addConstraint(Sketcher.Constraint("Coincident", 1, 2, 2, 1))
sketch7.addConstraint(Sketcher.Constraint("Coincident", 2, 2, 3, 2))
sketch7.addConstraint(Sketcher.Constraint("Coincident", 3, 1, 4, 1))
sketch7.addConstraint(Sketcher.Constraint("Coincident", 4, 2, 5, 1))
sketch7.addConstraint(Sketcher.Constraint("Coincident", 5, 2, 6, 1))
sketch7.addConstraint(Sketcher.Constraint("Coincident", 6, 2, 7, 1))
sketch7.addConstraint(Sketcher.Constraint("Coincident", 7, 2, 8, 1))
sketch7.addConstraint(Sketcher.Constraint("Coincident", 8, 2, 9, 1))
sketch7.addConstraint(Sketcher.Constraint("Coincident", 9, 2, 10, 1))
sketch7.addConstraint(Sketcher.Constraint("Coincident", 10, 2, 11, 2))
sketch7.addConstraint(Sketcher.Constraint("Coincident", 11, 1, 12, 1))
sketch7.addConstraint(Sketcher.Constraint("Coincident", 12, 2, 13, 1))
sketch7.addConstraint(Sketcher.Constraint("Coincident", 13, 2, 0, 1))
sketch7.addConstraint(Sketcher.Constraint("Vertical", 0))
sketch7.addConstraint(Sketcher.Constraint("Horizontal", 2))
sketch7.addConstraint(Sketcher.Constraint("Horizontal", 10))
sketch7.addConstraint(Sketcher.Constraint("Vertical", 12))
sketch7.addConstraint(Sketcher.Constraint("Horizontal", 13))
sketch7.addConstraint(Sketcher.Constraint("PointOnObject", 12, 2, -1))
sketch7.addConstraint(Sketcher.Constraint("Radius", 1, Q("0.05 mm")))
sketch7.addConstraint(Sketcher.Constraint("Radius", 3, Q("0.05 mm")))
sketch7.addConstraint(Sketcher.Constraint("Radius", 5, Q("0.05 mm")))
sketch7.addConstraint(Sketcher.Constraint("Radius", 7, Q("0.05 mm")))
sketch7.addConstraint(Sketcher.Constraint("Radius", 9, Q("0.05 mm")))
sketch7.addConstraint(Sketcher.Constraint("Radius", 11, Q("0.05 mm")))
sketch7.addConstraint(Sketcher.Constraint("DistanceX", 13, 1, 13, 2, Q("0.24 mm")))
sketch7.addConstraint(Sketcher.Constraint("DistanceY", 0, 1, 0, 2, Q("0.45 mm")))
sketch7.addConstraint(Sketcher.Constraint("DistanceY", 12, 2, 12, 1, Q("0.21 mm")))
sketch7.addConstraint(Sketcher.Constraint("DistanceY", -1, 1, 1, 2, Q("0.5 mm")))
sketch7.addConstraint(Sketcher.Constraint("Distance", 6, Q("0.14 mm")))
sketch7.addConstraint(Sketcher.Constraint("DistanceY", -1, 1, 9, 3, Q("0.31 mm")))
sketch7.addConstraint(Sketcher.Constraint("DistanceX", 1, 2, 0, 2, Q("0.05 mm")))
sketch7.addConstraint(Sketcher.Constraint("DistanceY", 3, 1, 5, 2, Q("0.55 mm")))
sketch7.addConstraint(Sketcher.Constraint("DistanceY", 8, 2, 3, 1, Q("0.24 mm")))
sketch7.addConstraint(Sketcher.Constraint("DistanceX", 10, 2, 1, 3, Q("0.24 mm")))
sketch7.addConstraint(Sketcher.Constraint("DistanceX", -1, 1, 1, 3, Q("0.745 mm")))
sketch7.addConstraint(Sketcher.Constraint("DistanceX", 2, 2, 2, 1, Q("0.466448 mm")))
sketch7.addConstraint(Sketcher.Constraint("DistanceX", -1, 1, 3, 1, Q("0.230198 mm")))
sketch7.addConstraint(Sketcher.Constraint("Distance", 4, Q("0.531889 mm")))
sketch7.addConstraint(Sketcher.Constraint("DistanceX", 10, 1, 10, 2, Q("0.411457 mm")))
sketch7.addConstraint(Sketcher.Constraint("DistanceX", -1, 1, 3, 3, Q("0.278552 mm")))
sketch7.addConstraint(Sketcher.Constraint("DistanceX", -1, 1, 5, 3, Q("0.046469 mm")))
sketch7.addConstraint(Sketcher.Constraint("DistanceY", -1, 1, 5, 3, Q("1.038921 mm")))
sketch7.addConstraint(Sketcher.Constraint("DistanceX", 7, 3, -1, 1, Q("0.088921 mm")))
sketch7.addConstraint(Sketcher.Constraint("DistanceY", -1, 1, 6, 2, Q("1.051641 mm")))
sketch7.addConstraint(Sketcher.Constraint("DistanceX", -1, 1, 8, 2, Q("0.04519 mm")))
sketch7.addConstraint(Sketcher.Constraint("DistanceY", 7, 2, 6, 2, Q("0.061079 mm")))
pad5 = doc.addObject("PartDesign::Pad", "Pad004")
body.addObject(pad5)
pad5.Profile = sketch7
pad5.Length = 0.5
pad5.Midplane = True

doc.recompute()
